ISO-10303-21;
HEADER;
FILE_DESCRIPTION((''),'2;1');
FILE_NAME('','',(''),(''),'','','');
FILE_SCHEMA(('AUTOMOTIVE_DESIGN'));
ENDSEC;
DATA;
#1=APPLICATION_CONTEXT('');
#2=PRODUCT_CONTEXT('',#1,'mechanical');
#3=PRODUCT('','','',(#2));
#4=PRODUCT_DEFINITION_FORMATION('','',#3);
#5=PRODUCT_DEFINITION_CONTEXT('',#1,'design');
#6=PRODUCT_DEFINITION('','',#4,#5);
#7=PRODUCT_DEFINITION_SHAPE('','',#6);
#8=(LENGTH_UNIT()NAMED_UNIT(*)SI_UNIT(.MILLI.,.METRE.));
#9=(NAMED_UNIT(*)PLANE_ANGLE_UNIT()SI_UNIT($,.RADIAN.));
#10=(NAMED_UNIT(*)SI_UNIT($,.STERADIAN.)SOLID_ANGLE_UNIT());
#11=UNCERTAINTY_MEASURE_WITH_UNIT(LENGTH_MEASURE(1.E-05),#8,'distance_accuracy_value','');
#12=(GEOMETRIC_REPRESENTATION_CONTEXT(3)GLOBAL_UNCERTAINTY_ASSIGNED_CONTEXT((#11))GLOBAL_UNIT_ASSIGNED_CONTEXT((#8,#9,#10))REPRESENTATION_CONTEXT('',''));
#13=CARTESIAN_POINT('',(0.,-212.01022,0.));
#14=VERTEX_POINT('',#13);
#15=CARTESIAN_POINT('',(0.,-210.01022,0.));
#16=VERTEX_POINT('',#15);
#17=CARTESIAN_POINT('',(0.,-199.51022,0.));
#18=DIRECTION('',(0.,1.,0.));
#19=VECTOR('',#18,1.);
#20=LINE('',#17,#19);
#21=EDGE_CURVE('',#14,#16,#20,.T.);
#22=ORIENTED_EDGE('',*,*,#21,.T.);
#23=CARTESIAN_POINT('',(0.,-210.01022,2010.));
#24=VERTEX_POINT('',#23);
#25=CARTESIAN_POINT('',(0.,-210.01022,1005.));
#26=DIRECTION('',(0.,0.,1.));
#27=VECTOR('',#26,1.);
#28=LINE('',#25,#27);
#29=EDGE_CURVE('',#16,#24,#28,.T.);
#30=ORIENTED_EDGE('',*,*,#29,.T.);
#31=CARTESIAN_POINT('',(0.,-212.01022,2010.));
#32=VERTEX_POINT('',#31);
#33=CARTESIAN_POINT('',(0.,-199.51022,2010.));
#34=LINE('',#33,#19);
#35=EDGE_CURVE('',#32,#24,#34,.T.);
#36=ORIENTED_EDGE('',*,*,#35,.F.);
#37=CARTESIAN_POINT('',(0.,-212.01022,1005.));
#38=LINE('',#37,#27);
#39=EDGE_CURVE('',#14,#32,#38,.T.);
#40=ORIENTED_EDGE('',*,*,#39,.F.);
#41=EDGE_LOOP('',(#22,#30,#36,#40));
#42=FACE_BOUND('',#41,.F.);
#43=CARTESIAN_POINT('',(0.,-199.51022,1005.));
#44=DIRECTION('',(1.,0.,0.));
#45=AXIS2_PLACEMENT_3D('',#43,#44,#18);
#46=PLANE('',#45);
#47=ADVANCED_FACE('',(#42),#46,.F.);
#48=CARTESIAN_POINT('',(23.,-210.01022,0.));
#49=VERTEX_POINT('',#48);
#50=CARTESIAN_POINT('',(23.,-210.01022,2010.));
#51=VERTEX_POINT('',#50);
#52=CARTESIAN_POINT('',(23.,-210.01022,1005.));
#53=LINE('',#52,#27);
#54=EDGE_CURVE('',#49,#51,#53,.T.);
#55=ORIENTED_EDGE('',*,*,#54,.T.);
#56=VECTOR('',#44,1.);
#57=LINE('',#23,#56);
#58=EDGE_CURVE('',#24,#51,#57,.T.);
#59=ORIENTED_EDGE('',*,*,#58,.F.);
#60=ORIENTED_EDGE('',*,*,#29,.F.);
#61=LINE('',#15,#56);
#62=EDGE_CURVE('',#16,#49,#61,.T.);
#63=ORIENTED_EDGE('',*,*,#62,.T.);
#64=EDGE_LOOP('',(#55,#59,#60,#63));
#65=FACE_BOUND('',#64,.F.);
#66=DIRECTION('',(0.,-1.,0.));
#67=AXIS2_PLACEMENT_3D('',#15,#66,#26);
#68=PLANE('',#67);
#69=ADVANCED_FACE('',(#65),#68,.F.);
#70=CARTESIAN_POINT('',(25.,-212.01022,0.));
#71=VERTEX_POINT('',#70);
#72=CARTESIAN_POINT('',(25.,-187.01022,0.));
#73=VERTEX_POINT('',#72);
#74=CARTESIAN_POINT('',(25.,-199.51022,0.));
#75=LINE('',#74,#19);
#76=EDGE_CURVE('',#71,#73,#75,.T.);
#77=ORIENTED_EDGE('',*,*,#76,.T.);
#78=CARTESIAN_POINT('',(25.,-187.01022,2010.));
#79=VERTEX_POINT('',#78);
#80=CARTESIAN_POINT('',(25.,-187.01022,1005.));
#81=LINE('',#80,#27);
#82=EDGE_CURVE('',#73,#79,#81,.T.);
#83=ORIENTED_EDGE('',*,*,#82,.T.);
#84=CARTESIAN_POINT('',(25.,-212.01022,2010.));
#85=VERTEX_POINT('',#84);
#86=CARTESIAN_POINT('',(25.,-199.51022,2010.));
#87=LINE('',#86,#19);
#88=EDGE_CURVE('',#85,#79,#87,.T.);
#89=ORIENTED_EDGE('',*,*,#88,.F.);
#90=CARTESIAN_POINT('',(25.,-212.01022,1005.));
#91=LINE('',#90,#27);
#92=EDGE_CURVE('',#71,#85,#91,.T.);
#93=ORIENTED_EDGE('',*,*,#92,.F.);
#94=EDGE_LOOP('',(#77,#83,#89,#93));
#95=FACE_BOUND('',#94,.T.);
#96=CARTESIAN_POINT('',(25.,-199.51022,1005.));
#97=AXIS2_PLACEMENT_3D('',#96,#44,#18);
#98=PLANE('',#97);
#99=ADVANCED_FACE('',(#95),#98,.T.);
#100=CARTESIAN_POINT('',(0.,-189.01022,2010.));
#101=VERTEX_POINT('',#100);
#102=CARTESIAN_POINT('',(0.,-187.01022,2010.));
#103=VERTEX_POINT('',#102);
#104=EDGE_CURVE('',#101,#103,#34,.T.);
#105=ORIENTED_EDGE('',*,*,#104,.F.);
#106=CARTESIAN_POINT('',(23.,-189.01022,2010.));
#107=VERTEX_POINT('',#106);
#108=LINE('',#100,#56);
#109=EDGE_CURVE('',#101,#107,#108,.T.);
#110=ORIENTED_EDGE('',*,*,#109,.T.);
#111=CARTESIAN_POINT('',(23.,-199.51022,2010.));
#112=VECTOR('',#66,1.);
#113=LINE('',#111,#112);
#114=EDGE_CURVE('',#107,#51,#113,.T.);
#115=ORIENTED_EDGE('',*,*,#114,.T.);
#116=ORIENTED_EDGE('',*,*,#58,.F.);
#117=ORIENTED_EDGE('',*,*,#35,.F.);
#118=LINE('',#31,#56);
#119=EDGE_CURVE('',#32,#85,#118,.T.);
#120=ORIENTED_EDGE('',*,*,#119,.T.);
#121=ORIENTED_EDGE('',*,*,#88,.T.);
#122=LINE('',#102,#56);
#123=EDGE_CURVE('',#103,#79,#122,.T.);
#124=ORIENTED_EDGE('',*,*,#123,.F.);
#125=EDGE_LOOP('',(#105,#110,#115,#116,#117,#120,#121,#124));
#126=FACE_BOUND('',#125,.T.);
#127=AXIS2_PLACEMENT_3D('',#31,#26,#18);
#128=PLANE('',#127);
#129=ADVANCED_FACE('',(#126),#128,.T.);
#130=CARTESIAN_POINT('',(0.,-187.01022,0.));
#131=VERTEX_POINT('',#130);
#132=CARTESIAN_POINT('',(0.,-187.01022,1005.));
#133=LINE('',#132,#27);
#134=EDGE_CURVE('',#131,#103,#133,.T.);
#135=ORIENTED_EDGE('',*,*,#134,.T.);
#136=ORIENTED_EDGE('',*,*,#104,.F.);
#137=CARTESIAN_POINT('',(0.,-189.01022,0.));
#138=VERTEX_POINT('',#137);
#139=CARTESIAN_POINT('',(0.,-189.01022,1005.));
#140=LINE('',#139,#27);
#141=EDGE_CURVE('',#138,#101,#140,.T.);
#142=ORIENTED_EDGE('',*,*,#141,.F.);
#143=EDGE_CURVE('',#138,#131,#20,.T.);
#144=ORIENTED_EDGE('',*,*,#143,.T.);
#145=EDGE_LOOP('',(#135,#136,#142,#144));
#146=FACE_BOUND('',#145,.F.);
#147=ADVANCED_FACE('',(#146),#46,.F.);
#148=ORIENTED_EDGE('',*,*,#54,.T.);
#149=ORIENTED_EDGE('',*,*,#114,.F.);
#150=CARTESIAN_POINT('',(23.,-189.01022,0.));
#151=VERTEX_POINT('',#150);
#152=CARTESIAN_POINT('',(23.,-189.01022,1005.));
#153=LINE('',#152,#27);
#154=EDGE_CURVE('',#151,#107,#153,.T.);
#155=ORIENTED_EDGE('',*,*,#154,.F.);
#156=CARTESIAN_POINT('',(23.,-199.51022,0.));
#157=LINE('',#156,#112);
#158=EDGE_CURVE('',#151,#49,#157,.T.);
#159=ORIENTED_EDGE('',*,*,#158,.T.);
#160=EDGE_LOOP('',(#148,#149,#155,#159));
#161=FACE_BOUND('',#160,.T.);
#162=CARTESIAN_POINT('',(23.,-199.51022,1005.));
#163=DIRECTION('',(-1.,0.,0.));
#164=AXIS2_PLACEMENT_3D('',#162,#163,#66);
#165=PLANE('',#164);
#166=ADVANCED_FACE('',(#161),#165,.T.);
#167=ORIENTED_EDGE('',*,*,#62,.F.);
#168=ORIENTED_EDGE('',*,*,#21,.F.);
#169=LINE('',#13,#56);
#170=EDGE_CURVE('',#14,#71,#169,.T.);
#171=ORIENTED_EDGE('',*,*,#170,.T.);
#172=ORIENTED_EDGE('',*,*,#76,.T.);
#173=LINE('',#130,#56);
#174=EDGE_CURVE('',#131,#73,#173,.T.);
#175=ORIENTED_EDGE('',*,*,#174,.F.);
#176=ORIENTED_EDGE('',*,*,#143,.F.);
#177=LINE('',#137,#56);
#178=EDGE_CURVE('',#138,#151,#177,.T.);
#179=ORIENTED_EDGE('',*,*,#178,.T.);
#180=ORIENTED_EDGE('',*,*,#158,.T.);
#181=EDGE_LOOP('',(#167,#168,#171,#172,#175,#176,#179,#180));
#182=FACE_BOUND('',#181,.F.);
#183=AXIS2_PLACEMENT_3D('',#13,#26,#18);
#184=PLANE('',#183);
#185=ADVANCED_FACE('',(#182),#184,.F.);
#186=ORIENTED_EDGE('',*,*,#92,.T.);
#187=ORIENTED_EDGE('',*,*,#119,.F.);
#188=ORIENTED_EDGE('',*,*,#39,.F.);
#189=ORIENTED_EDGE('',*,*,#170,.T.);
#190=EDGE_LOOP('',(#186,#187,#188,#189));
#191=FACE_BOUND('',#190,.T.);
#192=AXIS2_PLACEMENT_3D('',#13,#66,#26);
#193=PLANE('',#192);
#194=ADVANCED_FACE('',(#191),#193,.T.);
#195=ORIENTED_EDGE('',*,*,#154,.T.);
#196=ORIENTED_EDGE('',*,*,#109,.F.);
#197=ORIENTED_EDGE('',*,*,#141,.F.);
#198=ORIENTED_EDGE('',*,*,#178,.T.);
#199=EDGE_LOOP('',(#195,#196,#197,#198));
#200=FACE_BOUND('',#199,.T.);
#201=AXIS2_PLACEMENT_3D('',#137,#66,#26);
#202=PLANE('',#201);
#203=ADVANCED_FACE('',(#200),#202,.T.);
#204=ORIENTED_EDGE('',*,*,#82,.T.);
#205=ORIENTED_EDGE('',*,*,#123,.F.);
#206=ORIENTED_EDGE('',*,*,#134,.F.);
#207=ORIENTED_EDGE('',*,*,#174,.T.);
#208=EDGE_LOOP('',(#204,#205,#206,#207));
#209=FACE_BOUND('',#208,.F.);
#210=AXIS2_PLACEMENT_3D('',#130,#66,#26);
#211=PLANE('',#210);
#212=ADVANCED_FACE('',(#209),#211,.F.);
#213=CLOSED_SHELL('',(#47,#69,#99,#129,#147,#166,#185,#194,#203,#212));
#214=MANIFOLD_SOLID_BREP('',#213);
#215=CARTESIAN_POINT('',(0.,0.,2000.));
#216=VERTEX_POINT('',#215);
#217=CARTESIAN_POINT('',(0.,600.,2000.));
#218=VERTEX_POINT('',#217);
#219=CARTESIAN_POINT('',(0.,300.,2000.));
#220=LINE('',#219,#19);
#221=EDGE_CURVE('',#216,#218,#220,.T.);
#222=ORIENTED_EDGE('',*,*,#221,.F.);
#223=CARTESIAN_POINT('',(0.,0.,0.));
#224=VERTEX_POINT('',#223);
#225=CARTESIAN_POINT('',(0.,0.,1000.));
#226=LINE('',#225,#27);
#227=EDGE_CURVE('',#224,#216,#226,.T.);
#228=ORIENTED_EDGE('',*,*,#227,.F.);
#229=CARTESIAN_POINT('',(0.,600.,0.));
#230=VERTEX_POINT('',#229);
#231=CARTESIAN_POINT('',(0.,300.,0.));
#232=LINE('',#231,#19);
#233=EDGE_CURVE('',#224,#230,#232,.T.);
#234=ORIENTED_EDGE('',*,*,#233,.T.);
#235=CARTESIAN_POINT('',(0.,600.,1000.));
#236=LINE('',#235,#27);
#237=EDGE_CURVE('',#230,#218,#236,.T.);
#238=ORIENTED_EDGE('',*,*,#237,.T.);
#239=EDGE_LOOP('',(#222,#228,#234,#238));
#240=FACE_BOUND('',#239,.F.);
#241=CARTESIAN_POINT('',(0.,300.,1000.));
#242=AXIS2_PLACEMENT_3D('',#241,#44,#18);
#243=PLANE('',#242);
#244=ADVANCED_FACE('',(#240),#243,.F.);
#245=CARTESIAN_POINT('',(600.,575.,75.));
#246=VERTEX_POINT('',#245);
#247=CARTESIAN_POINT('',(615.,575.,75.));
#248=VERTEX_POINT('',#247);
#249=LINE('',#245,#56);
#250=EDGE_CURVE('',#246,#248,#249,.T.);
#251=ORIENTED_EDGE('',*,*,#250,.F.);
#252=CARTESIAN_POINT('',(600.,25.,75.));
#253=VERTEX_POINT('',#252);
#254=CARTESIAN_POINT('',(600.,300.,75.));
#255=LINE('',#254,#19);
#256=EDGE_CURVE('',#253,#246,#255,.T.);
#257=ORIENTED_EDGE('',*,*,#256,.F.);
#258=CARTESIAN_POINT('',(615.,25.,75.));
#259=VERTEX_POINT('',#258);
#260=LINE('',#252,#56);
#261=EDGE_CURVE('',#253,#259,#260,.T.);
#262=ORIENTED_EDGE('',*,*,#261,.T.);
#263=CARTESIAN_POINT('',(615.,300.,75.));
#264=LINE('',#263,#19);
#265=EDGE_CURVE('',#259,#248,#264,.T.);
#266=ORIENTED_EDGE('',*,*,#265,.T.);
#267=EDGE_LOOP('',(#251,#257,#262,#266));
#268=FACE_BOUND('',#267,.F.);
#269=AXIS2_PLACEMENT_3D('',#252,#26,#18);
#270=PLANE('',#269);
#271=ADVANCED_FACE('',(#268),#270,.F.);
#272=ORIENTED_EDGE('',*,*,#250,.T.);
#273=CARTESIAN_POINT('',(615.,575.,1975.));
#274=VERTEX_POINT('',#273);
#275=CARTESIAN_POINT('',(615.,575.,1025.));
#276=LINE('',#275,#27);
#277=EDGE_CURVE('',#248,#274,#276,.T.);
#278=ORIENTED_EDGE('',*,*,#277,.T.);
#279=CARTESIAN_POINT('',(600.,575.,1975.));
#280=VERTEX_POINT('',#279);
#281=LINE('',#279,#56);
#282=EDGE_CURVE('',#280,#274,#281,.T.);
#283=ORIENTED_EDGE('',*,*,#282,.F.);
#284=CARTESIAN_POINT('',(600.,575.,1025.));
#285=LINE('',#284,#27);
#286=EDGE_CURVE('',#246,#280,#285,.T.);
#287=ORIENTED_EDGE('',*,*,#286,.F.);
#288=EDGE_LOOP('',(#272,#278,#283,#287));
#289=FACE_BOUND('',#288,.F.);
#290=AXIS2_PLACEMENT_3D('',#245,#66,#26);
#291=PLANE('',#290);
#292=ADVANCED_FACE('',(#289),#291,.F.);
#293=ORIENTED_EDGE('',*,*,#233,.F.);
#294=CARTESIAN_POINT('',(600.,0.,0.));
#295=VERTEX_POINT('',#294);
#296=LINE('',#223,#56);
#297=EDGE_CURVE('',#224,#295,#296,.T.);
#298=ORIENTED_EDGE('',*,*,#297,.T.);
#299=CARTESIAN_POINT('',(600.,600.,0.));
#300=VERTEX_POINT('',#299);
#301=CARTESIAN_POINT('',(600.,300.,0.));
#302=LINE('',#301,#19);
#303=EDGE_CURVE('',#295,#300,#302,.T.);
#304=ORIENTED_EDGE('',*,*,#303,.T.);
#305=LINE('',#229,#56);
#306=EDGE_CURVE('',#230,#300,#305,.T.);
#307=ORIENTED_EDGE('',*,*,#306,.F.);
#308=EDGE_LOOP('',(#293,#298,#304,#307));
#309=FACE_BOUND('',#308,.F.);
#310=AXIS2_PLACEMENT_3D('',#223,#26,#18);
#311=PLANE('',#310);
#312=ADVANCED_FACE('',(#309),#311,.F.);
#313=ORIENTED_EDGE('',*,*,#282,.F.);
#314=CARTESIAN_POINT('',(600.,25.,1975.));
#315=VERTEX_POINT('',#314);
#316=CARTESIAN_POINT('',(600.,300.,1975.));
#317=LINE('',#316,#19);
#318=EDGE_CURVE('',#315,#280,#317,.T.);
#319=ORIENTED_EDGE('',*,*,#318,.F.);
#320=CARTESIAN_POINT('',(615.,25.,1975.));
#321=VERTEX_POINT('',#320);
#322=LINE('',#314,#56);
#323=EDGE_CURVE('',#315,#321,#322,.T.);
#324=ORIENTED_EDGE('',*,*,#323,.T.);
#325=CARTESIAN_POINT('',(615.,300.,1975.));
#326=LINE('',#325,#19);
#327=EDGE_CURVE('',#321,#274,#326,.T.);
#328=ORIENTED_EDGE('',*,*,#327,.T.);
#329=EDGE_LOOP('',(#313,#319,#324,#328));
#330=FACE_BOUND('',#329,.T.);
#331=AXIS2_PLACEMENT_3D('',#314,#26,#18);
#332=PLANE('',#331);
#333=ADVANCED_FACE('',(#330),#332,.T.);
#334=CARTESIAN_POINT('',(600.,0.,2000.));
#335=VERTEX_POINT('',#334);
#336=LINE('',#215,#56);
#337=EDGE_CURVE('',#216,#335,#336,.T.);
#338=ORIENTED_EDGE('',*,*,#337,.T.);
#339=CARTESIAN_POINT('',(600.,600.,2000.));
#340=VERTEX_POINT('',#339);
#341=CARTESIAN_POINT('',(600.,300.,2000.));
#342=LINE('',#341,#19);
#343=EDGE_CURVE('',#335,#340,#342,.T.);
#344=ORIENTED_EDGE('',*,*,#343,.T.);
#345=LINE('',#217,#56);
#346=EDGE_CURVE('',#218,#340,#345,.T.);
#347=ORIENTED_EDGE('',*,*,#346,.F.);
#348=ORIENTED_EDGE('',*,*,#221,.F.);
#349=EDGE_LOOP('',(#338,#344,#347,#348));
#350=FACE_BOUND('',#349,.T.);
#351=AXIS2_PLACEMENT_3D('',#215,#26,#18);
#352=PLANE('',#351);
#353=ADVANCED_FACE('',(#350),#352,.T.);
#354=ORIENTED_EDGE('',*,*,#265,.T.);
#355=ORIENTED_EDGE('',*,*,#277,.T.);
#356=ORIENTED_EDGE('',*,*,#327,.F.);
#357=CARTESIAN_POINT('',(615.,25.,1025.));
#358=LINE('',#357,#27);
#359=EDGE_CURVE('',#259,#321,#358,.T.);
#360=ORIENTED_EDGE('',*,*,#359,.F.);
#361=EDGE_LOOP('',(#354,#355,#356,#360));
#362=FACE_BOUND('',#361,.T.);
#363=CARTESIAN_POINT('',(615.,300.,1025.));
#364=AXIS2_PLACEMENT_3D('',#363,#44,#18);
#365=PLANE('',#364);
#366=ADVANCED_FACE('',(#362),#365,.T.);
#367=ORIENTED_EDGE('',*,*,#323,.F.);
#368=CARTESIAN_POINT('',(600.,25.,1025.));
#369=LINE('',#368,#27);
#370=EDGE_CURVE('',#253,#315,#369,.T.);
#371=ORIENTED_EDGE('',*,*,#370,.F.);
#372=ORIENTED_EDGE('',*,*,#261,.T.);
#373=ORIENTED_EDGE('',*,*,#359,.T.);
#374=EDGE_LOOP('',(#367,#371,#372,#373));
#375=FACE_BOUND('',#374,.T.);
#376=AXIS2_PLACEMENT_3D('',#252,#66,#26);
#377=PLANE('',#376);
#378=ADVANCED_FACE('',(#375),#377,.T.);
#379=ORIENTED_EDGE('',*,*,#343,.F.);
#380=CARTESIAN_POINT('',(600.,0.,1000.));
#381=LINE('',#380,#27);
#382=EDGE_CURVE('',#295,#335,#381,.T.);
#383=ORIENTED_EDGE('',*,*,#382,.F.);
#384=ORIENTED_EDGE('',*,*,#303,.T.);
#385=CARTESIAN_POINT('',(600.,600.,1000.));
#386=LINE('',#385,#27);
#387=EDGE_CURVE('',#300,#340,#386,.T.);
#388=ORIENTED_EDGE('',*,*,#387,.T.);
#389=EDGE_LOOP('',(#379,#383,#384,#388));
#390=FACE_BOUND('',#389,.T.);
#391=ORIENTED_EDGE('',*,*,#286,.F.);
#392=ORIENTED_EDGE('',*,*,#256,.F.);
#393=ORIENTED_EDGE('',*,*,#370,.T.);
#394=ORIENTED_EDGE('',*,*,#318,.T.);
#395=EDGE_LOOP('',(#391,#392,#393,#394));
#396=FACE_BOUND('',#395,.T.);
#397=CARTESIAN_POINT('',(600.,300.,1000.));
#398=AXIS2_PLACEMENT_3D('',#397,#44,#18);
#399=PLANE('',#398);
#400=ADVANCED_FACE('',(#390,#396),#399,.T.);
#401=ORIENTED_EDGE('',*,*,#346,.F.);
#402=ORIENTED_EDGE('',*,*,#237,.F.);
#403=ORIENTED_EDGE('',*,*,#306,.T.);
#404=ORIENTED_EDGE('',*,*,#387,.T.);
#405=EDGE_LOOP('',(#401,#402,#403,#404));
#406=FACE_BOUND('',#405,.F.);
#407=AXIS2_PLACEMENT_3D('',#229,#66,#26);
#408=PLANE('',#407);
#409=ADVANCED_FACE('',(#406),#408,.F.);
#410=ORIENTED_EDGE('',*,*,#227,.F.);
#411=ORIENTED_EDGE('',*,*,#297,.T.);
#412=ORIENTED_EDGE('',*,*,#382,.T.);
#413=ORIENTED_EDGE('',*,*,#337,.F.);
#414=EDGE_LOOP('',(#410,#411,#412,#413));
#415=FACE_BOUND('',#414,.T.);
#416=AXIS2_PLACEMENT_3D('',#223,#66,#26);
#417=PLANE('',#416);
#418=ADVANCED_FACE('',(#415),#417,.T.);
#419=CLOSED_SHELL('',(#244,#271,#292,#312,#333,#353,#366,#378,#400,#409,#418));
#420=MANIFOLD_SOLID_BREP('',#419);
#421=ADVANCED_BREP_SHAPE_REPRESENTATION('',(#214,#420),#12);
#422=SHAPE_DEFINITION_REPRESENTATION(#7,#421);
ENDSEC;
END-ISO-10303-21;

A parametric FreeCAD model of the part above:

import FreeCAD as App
import Part
import Sketcher
from FreeCAD import Vector
Q = App.Units.Quantity


def add_polygon(sketch, points):
    """Adds a closed chain of lines whose ends are joined by coincident constraints."""
    first, n = sketch.GeometryCount, len(points)
    for a, b in zip(points, points[1:] + points[:1]):
        sketch.addGeometry(Part.LineSegment(App.Vector(*a, 0), App.Vector(*b, 0)), False)
    for i in range(n):
        sketch.addConstraint(Sketcher.Constraint("Coincident", first + i, 2, first + (i + 1) % n, 1))

doc = App.newDocument("Part")
body = doc.addObject("PartDesign::Body", "Body")

sketch1 = body.newObject("Sketcher::SketchObject", "Sketch")
sketch1.AttachmentSupport = (doc.getObject("YZ_Plane"), [""])
sketch1.MapMode = "FlatFace"
add_polygon(sketch1, [(0, 2000), (0, 0), (600, 0), (600, 2000)])
sketch1.addConstraint(Sketcher.Constraint("Vertical", 0))
sketch1.addConstraint(Sketcher.Constraint("Horizontal", 1))
sketch1.addConstraint(Sketcher.Constraint("Vertical", 2))
sketch1.addConstraint(Sketcher.Constraint("Horizontal", 3))
sketch1.addConstraint(Sketcher.Constraint("Coincident", 0, 2, -1, 1))
sketch1.addConstraint(Sketcher.Constraint("DistanceX", 1, 1, 1, 2, Q("600 mm")))
sketch1.addConstraint(Sketcher.Constraint("DistanceY", 0, 2, 0, 1, Q("2000 mm")))
pad1 = body.newObject("PartDesign::Pad", "Pad")
pad1.Profile = sketch1
pad1.Length = 600

sketch2 = body.newObject("Sketcher::SketchObject", "Sketch001")
sketch2.AttachmentSupport = (doc.getObject("YZ_Plane"), [""])
sketch2.MapMode = "FlatFace"
sketch2.AttachmentOffset = App.Placement(Vector(0, 0, 600), App.Rotation())
add_polygon(sketch2, [(25, 1975), (25, 75), (575, 75), (575, 1975)])
sketch2.addConstraint(Sketcher.Constraint("Vertical", 0))
sketch2.addConstraint(Sketcher.Constraint("Horizontal", 1))
sketch2.addConstraint(Sketcher.Constraint("Vertical", 2))
sketch2.addConstraint(Sketcher.Constraint("Horizontal", 3))
sketch2.addConstraint(Sketcher.Constraint("DistanceX", 1, 1, 1, 2, Q("550 mm")))
sketch2.addConstraint(Sketcher.Constraint("DistanceY", 0, 2, 0, 1, Q("1900 mm")))
sketch2.addConstraint(Sketcher.Constraint("DistanceX", -1, 1, 0, 2, Q("25 mm")))
sketch2.addConstraint(Sketcher.Constraint("DistanceY", -1, 1, 0, 2, Q("75 mm")))
pad2 = body.newObject("PartDesign::Pad", "Pad001")
pad2.Profile = sketch2
pad2.Length = 15
body2 = doc.addObject("PartDesign::Body", "Body001")

sketch3 = body2.newObject("Sketcher::SketchObject", "Sketch002")
sketch3.AttachmentSupport = (doc.getObject("YZ_Plane001"), [""])
sketch3.MapMode = "FlatFace"
add_polygon(sketch3, [(-212, 2010), (-212, 0), (-187, 0), (-187, 2010)])
sketch3.addConstraint(Sketcher.Constraint("Vertical", 0))
sketch3.addConstraint(Sketcher.Constraint("Horizontal", 1))
sketch3.addConstraint(Sketcher.Constraint("Vertical", 2))
sketch3.addConstraint(Sketcher.Constraint("Horizontal", 3))
sketch3.addConstraint(Sketcher.Constraint("PointOnObject", 0, 2, -1))
sketch3.addConstraint(Sketcher.Constraint("DistanceX", 1, 1, 1, 2, Q("25 mm")))
sketch3.addConstraint(Sketcher.Constraint("DistanceY", 0, 2, 0, 1, Q("2010 mm")))
sketch3.addConstraint(Sketcher.Constraint("DistanceX", 0, 2, -1, 1, Q("212.01022 mm")))
pad3 = body2.newObject("PartDesign::Pad", "Pad002")
pad3.Profile = sketch3
pad3.Length = 25

sketch4 = body2.newObject("Sketcher::SketchObject", "Sketch003")
sketch4.AttachmentSupport = (doc.getObject("YZ_Plane001"), [""])
sketch4.MapMode = "FlatFace"
add_polygon(sketch4, [(-189, 2010), (-189, 0), (-210, 0), (-210, 2010)])
sketch4.addConstraint(Sketcher.Constraint("Vertical", 0))
sketch4.addConstraint(Sketcher.Constraint("Horizontal", 1))
sketch4.addConstraint(Sketcher.Constraint("Vertical", 2))
sketch4.addConstraint(Sketcher.Constraint("Horizontal", 3))
sketch4.addConstraint(Sketcher.Constraint("PointOnObject", 0, 2, -1))
sketch4.addConstraint(Sketcher.Constraint("DistanceX", 1, 2, 1, 1, Q("21 mm")))
sketch4.addConstraint(Sketcher.Constraint("DistanceY", 0, 2, 0, 1, Q("2010 mm")))
sketch4.addConstraint(Sketcher.Constraint("DistanceX", 0, 2, -1, 1, Q("189.01022 mm")))
pocket1 = body2.newObject("PartDesign::Pocket", "Pocket")
pocket1.Profile = sketch4
pocket1.Length = 23
pocket1.Reversed = True

doc.recompute()
